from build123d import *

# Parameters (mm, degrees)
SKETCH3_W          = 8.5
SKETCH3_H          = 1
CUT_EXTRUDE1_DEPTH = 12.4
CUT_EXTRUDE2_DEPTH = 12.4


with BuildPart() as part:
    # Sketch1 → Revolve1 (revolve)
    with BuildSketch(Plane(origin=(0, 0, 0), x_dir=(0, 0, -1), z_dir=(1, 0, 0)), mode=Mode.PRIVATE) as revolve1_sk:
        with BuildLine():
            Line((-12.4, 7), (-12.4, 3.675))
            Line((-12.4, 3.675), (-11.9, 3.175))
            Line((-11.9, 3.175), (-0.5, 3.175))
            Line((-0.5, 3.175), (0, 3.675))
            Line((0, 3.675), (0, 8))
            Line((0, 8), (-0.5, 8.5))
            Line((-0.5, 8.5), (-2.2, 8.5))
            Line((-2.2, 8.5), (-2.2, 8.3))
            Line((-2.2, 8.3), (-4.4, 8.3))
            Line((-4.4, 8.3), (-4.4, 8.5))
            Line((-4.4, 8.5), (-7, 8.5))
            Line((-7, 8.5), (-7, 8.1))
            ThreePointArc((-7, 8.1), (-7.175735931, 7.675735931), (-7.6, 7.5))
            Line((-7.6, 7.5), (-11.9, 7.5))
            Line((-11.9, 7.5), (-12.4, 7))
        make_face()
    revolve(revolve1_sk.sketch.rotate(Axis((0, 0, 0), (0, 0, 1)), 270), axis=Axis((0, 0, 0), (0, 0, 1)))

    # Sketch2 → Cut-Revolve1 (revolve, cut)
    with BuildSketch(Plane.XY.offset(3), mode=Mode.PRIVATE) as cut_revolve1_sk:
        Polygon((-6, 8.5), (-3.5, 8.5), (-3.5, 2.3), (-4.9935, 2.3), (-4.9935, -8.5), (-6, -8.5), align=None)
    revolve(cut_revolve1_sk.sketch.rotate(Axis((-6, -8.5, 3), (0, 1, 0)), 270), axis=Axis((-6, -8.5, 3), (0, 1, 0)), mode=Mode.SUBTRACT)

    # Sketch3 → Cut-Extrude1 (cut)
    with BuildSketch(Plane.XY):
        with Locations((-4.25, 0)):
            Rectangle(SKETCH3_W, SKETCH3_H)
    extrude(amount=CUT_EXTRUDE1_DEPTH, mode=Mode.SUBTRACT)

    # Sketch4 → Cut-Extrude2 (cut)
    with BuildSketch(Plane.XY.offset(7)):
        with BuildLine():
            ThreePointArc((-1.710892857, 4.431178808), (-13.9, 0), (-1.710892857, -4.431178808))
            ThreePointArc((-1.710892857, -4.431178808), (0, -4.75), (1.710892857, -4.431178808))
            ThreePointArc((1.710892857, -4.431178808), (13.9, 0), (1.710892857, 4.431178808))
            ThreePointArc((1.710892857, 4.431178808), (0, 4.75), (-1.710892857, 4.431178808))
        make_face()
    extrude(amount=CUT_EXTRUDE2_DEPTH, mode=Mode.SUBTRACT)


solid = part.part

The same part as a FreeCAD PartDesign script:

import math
import FreeCAD as App
import Part
import Sketcher

doc = App.newDocument("Part")
params = doc.addObject("Spreadsheet::Sheet", "Params")
for row, (alias, value) in enumerate([
    ("sketch1_radius", "0.6 mm"),
    ("sketch1_width", "0.2 mm"),
    ("sketch1_width2", "0.4 mm"),
    ("sketch1_height", "11.4 mm"),
    ("sketch1_height2", "1.7 mm"),
    ("revolution_angle", "360 deg"),
    ("sketch2_height", "17 mm"),
    ("sketch2_width", "2.5 mm"),
    ("sketch2_height2", "10.8 mm"),
    ("groove_angle", "360 deg"),
    ("sketch3_height", "1 mm"),
    ("sketch3_width", "8.5 mm"),
    ("pocket1_length", "12.4 mm"),
    ("sketch4_radius", "6.9 mm"),
    ("sketch4_radius2", "4.75 mm"),
    ("pocket2_length", "12.4 mm"),
], start=1):
    params.set(f"A{row}", alias)
    params.set(f"B{row}", "=" + value)
    params.setAlias(f"B{row}", alias)

body = doc.addObject("PartDesign::Body", "Body")

sketch1 = doc.addObject("Sketcher::SketchObject", "Sketch")
body.addObject(sketch1)
sketch1.AttachmentSupport = (doc.YZ_Plane, [""])
sketch1.MapMode = "FlatFace"
sketch1.addGeometry([
    Part.LineSegment(App.Vector(7, 12.4, 0), App.Vector(3.675, 12.4, 0)),
    Part.LineSegment(App.Vector(3.675, 12.4, 0), App.Vector(3.175, 11.9, 0)),
    Part.LineSegment(App.Vector(3.175, 11.9, 0), App.Vector(3.175, 0.5, 0)),
    Part.LineSegment(App.Vector(3.175, 0.5, 0), App.Vector(3.675, 0, 0)),
    Part.LineSegment(App.Vector(3.675, 0, 0), App.Vector(8, 0, 0)),
    Part.LineSegment(App.Vector(8, 0, 0), App.Vector(8.5, 0.5, 0)),
    Part.LineSegment(App.Vector(8.5, 0.5, 0), App.Vector(8.5, 2.2, 0)),
    Part.LineSegment(App.Vector(8.5, 2.2, 0), App.Vector(8.3, 2.2, 0)),
    Part.LineSegment(App.Vector(8.3, 2.2, 0), App.Vector(8.3, 4.4, 0)),
    Part.LineSegment(App.Vector(8.3, 4.4, 0), App.Vector(8.5, 4.4, 0)),
    Part.LineSegment(App.Vector(8.5, 4.4, 0), App.Vector(8.5, 7, 0)),
    Part.LineSegment(App.Vector(8.5, 7, 0), App.Vector(8.1, 7, 0)),
    Part.ArcOfCircle(Part.Circle(App.Vector(8.1, 7.6, 0), App.Vector(0, 0, 1), 0.6), math.radians(180), math.radians(270)),
    Part.LineSegment(App.Vector(7.5, 7.6, 0), App.Vector(7.5, 11.9, 0)),
    Part.LineSegment(App.Vector(7.5, 11.9, 0), App.Vector(7, 12.4, 0)),
], False)
sketch1.addConstraint([
    Sketcher.Constraint("Coincident", 0, 2, 1, 1),
    Sketcher.Constraint("Coincident", 1, 2, 2, 1),
    Sketcher.Constraint("Coincident", 2, 2, 3, 1),
    Sketcher.Constraint("Coincident", 3, 2, 4, 1),
    Sketcher.Constraint("Coincident", 4, 2, 5, 1),
    Sketcher.Constraint("Coincident", 5, 2, 6, 1),
    Sketcher.Constraint("Coincident", 6, 2, 7, 1),
    Sketcher.Constraint("Coincident", 7, 2, 8, 1),
    Sketcher.Constraint("Coincident", 8, 2, 9, 1),
    Sketcher.Constraint("Coincident", 9, 2, 10, 1),
    Sketcher.Constraint("Coincident", 10, 2, 11, 1),
    Sketcher.Constraint("Tangent", 11, 2, 12, 2),
    Sketcher.Constraint("Tangent", 12, 1, 13, 1),
    Sketcher.Constraint("Coincident", 13, 2, 14, 1),
    Sketcher.Constraint("Coincident", 14, 2, 0, 1),
    Sketcher.Constraint("Horizontal", 0),
    Sketcher.Constraint("Vertical", 2),
    Sketcher.Constraint("Horizontal", 4),
    Sketcher.Constraint("Vertical", 6),
    Sketcher.Constraint("Horizontal", 7),
    Sketcher.Constraint("Vertical", 8),
    Sketcher.Constraint("Horizontal", 9),
    Sketcher.Constraint("Vertical", 10),
    Sketcher.Constraint("Horizontal", 11),
    Sketcher.Constraint("Vertical", 13),
    Sketcher.Constraint("PointOnObject", 3, 2, -1),
    Sketcher.Constraint("Perpendicular", 1, 3),
    Sketcher.Constraint("Perpendicular", 3, 5),
    Sketcher.Constraint("Perpendicular", 5, 14),
    Sketcher.Constraint("Horizontal", 2, 2, 5, 2),
    Sketcher.Constraint("Horizontal", 1, 2, 13, 2),
    Sketcher.Constraint("Vertical", 0, 2, 3, 2),
    Sketcher.Constraint("Vertical", 6, 2, 9, 2),
    Sketcher.Constraint("Equal", 1, 3),
    Sketcher.Constraint("Radius", 12, 0.6),
    Sketcher.Constraint("DistanceX", 7, 2, 7, 1, 0.2),
    Sketcher.Constraint("DistanceX", 11, 2, 11, 1, 0.4),
    Sketcher.Constraint("DistanceY", 2, 2, 2, 1, 11.4),
    Sketcher.Constraint("DistanceY", 6, 1, 6, 2, 1.7),
    Sketcher.Constraint("DistanceY", 8, 1, 8, 2, 2.2),
    Sketcher.Constraint("DistanceY", 10, 1, 10, 2, 2.6),
    Sketcher.Constraint("DistanceX", -1, 1, 4, 2, 8.0),
    Sketcher.Constraint("DistanceY", -1, 1, 10, 2, 7.0),
    Sketcher.Constraint("DistanceX", 0, 2, 0, 1, 3.325),
])
sketch1.setExpression("Constraints[34]", "Params.sketch1_radius")
sketch1.setExpression("Constraints[35]", "Params.sketch1_width")
sketch1.setExpression("Constraints[36]", "Params.sketch1_width2")
sketch1.setExpression("Constraints[37]", "Params.sketch1_height")
sketch1.setExpression("Constraints[38]", "Params.sketch1_height2")
revolution = doc.addObject("PartDesign::Revolution", "Revolution")
body.addObject(revolution)
revolution.Profile = sketch1
revolution.ReferenceAxis = (sketch1, ["V_Axis"])
revolution.setExpression("Angle", "Params.revolution_angle")

sketch2 = doc.addObject("Sketcher::SketchObject", "Sketch001")
body.addObject(sketch2)
sketch2.AttachmentSupport = (doc.XY_Plane, [""])
sketch2.MapMode = "FlatFace"
sketch2.AttachmentOffset = App.Placement(App.Vector(0, 0, 3), App.Rotation())
sketch2.addGeometry([
    Part.LineSegment(App.Vector(-3.5, 8.5, 0), App.Vector(-6, 8.5, 0)),
    Part.LineSegment(App.Vector(-6, 8.5, 0), App.Vector(-6, -8.5, 0)),
    Part.LineSegment(App.Vector(-6, -8.5, 0), App.Vector(-4.9935, -8.5, 0)),
    Part.LineSegment(App.Vector(-4.9935, -8.5, 0), App.Vector(-4.9935, 2.3, 0)),
    Part.LineSegment(App.Vector(-4.9935, 2.3, 0), App.Vector(-3.5, 2.3, 0)),
    Part.LineSegment(App.Vector(-3.5, 2.3, 0), App.Vector(-3.5, 8.5, 0)),
], False)
sketch2.addGeometry(Part.LineSegment(App.Vector(-6, -8.5, 0), App.Vector(-6, 8.5, 0)), True)
sketch2.addConstraint([
    Sketcher.Constraint("Coincident", 0, 2, 1, 1),
    Sketcher.Constraint("Coincident", 1, 2, 2, 1),
    Sketcher.Constraint("Coincident", 2, 2, 3, 1),
    Sketcher.Constraint("Coincident", 3, 2, 4, 1),
    Sketcher.Constraint("Coincident", 4, 2, 5, 1),
    Sketcher.Constraint("Coincident", 5, 2, 0, 1),
    Sketcher.Constraint("Horizontal", 0),
    Sketcher.Constraint("Vertical", 1),
    Sketcher.Constraint("Horizontal", 2),
    Sketcher.Constraint("Vertical", 3),
    Sketcher.Constraint("Horizontal", 4),
    Sketcher.Constraint("Vertical", 5),
    Sketcher.Constraint("Vertical", 6),
    Sketcher.Constraint("Coincident", 6, 1, 1, 2),
    Sketcher.Constraint("Horizontal", 5, 2, 6, 2),
    Sketcher.Constraint("DistanceY", 1, 2, 1, 1, 17.0),
    Sketcher.Constraint("DistanceX", 0, 2, 0, 1, 2.5),
    Sketcher.Constraint("DistanceY", 3, 1, 3, 2, 10.8),
    Sketcher.Constraint("DistanceX", 0, 2, -1, 1, 6.0),
    Sketcher.Constraint("DistanceY", -1, 1, 0, 2, 8.5),
    Sketcher.Constraint("DistanceX", 2, 1, 2, 2, 1.0065),
])
sketch2.setExpression("Constraints[15]", "Params.sketch2_height")
sketch2.setExpression("Constraints[16]", "Params.sketch2_width")
sketch2.setExpression("Constraints[17]", "Params.sketch2_height2")
groove = doc.addObject("PartDesign::Groove", "Groove")
body.addObject(groove)
groove.Profile = sketch2
groove.ReferenceAxis = (sketch2, ["Axis0"])
groove.setExpression("Angle", "Params.groove_angle")

sketch3 = doc.addObject("Sketcher::SketchObject", "Sketch002")
body.addObject(sketch3)
sketch3.AttachmentSupport = (doc.XY_Plane, [""])
sketch3.MapMode = "FlatFace"
sketch3.addGeometry([
    Part.LineSegment(App.Vector(-8.5, 0.5, 0), App.Vector(-8.5, -0.5, 0)),
    Part.LineSegment(App.Vector(-8.5, -0.5, 0), App.Vector(0, -0.5, 0)),
    Part.LineSegment(App.Vector(0, -0.5, 0), App.Vector(0, 0.5, 0)),
    Part.LineSegment(App.Vector(0, 0.5, 0), App.Vector(-8.5, 0.5, 0)),
], False)
sketch3.addConstraint([
    Sketcher.Constraint("Coincident", 0, 2, 1, 1),
    Sketcher.Constraint("Coincident", 1, 2, 2, 1),
    Sketcher.Constraint("Coincident", 2, 2, 3, 1),
    Sketcher.Constraint("Coincident", 3, 2, 0, 1),
    Sketcher.Constraint("Vertical", 0),
    Sketcher.Constraint("Horizontal", 1),
    Sketcher.Constraint("Vertical", 2),
    Sketcher.Constraint("Horizontal", 3),
    Sketcher.Constraint("Symmetric", 1, 2, 2, 2, -1, 1),
    Sketcher.Constraint("DistanceY", 0, 2, 0, 1, 1.0),
    Sketcher.Constraint("DistanceX", 1, 1, 1, 2, 8.5),
])
sketch3.setExpression("Constraints[9]", "Params.sketch3_height")
sketch3.setExpression("Constraints[10]", "Params.sketch3_width")
pocket1 = doc.addObject("PartDesign::Pocket", "Pocket")
body.addObject(pocket1)
pocket1.Profile = sketch3
pocket1.setExpression("Length", "Params.pocket1_length")
pocket1.Reversed = True

sketch4 = doc.addObject("Sketcher::SketchObject", "Sketch003")
body.addObject(sketch4)
sketch4.AttachmentSupport = (doc.XY_Plane, [""])
sketch4.MapMode = "FlatFace"
sketch4.AttachmentOffset = App.Placement(App.Vector(0, 0, 7), App.Rotation())
sketch4.addGeometry([
    Part.ArcOfCircle(Part.Circle(App.Vector(-7, 0, 0), App.Vector(0, 0, 1), 6.9), math.radians(39.956051), math.radians(320.043949)),
    Part.ArcOfCircle(Part.Circle(App.Vector(0, 0, 0), App.Vector(0, 0, 1), 4.75), math.radians(-111.11174), math.radians(-68.88826)),
    Part.ArcOfCircle(Part.Circle(App.Vector(7, 0, 0), App.Vector(0, 0, 1), 6.9), math.radians(-140.043949), math.radians(140.043949)),
    Part.ArcOfCircle(Part.Circle(App.Vector(0, 0, 0), App.Vector(0, 0, 1), 4.75), math.radians(68.88826), math.radians(111.11174)),
], False)
sketch4.addConstraint([
    Sketcher.Constraint("Coincident", 0, 2, 1, 1),
    Sketcher.Constraint("Coincident", 1, 2, 2, 1),
    Sketcher.Constraint("Coincident", 2, 2, 3, 1),
    Sketcher.Constraint("Coincident", 3, 2, 0, 1),
    Sketcher.Constraint("Coincident", 1, 3, -1, 1),
    Sketcher.Constraint("Coincident", 3, 3, -1, 1),
    Sketcher.Constraint("Equal", 0, 2),
    Sketcher.Constraint("Equal", 1, 3),
    Sketcher.Constraint("Symmetric", 0, 3, 2, 3, -1, 1),
    Sketcher.Constraint("PointOnObject", 0, 3, -1),
    Sketcher.Constraint("Radius", 0, 6.9),
    Sketcher.Constraint("Radius", 1, 4.75),
    Sketcher.Constraint("DistanceX", 0, 3, -1, 1, 7.0),
])
sketch4.setExpression("Constraints[10]", "Params.sketch4_radius")
sketch4.setExpression("Constraints[11]", "Params.sketch4_radius2")
pocket2 = doc.addObject("PartDesign::Pocket", "Pocket001")
body.addObject(pocket2)
pocket2.Profile = sketch4
pocket2.setExpression("Length", "Params.pocket2_length")
pocket2.Reversed = True

doc.recompute()
